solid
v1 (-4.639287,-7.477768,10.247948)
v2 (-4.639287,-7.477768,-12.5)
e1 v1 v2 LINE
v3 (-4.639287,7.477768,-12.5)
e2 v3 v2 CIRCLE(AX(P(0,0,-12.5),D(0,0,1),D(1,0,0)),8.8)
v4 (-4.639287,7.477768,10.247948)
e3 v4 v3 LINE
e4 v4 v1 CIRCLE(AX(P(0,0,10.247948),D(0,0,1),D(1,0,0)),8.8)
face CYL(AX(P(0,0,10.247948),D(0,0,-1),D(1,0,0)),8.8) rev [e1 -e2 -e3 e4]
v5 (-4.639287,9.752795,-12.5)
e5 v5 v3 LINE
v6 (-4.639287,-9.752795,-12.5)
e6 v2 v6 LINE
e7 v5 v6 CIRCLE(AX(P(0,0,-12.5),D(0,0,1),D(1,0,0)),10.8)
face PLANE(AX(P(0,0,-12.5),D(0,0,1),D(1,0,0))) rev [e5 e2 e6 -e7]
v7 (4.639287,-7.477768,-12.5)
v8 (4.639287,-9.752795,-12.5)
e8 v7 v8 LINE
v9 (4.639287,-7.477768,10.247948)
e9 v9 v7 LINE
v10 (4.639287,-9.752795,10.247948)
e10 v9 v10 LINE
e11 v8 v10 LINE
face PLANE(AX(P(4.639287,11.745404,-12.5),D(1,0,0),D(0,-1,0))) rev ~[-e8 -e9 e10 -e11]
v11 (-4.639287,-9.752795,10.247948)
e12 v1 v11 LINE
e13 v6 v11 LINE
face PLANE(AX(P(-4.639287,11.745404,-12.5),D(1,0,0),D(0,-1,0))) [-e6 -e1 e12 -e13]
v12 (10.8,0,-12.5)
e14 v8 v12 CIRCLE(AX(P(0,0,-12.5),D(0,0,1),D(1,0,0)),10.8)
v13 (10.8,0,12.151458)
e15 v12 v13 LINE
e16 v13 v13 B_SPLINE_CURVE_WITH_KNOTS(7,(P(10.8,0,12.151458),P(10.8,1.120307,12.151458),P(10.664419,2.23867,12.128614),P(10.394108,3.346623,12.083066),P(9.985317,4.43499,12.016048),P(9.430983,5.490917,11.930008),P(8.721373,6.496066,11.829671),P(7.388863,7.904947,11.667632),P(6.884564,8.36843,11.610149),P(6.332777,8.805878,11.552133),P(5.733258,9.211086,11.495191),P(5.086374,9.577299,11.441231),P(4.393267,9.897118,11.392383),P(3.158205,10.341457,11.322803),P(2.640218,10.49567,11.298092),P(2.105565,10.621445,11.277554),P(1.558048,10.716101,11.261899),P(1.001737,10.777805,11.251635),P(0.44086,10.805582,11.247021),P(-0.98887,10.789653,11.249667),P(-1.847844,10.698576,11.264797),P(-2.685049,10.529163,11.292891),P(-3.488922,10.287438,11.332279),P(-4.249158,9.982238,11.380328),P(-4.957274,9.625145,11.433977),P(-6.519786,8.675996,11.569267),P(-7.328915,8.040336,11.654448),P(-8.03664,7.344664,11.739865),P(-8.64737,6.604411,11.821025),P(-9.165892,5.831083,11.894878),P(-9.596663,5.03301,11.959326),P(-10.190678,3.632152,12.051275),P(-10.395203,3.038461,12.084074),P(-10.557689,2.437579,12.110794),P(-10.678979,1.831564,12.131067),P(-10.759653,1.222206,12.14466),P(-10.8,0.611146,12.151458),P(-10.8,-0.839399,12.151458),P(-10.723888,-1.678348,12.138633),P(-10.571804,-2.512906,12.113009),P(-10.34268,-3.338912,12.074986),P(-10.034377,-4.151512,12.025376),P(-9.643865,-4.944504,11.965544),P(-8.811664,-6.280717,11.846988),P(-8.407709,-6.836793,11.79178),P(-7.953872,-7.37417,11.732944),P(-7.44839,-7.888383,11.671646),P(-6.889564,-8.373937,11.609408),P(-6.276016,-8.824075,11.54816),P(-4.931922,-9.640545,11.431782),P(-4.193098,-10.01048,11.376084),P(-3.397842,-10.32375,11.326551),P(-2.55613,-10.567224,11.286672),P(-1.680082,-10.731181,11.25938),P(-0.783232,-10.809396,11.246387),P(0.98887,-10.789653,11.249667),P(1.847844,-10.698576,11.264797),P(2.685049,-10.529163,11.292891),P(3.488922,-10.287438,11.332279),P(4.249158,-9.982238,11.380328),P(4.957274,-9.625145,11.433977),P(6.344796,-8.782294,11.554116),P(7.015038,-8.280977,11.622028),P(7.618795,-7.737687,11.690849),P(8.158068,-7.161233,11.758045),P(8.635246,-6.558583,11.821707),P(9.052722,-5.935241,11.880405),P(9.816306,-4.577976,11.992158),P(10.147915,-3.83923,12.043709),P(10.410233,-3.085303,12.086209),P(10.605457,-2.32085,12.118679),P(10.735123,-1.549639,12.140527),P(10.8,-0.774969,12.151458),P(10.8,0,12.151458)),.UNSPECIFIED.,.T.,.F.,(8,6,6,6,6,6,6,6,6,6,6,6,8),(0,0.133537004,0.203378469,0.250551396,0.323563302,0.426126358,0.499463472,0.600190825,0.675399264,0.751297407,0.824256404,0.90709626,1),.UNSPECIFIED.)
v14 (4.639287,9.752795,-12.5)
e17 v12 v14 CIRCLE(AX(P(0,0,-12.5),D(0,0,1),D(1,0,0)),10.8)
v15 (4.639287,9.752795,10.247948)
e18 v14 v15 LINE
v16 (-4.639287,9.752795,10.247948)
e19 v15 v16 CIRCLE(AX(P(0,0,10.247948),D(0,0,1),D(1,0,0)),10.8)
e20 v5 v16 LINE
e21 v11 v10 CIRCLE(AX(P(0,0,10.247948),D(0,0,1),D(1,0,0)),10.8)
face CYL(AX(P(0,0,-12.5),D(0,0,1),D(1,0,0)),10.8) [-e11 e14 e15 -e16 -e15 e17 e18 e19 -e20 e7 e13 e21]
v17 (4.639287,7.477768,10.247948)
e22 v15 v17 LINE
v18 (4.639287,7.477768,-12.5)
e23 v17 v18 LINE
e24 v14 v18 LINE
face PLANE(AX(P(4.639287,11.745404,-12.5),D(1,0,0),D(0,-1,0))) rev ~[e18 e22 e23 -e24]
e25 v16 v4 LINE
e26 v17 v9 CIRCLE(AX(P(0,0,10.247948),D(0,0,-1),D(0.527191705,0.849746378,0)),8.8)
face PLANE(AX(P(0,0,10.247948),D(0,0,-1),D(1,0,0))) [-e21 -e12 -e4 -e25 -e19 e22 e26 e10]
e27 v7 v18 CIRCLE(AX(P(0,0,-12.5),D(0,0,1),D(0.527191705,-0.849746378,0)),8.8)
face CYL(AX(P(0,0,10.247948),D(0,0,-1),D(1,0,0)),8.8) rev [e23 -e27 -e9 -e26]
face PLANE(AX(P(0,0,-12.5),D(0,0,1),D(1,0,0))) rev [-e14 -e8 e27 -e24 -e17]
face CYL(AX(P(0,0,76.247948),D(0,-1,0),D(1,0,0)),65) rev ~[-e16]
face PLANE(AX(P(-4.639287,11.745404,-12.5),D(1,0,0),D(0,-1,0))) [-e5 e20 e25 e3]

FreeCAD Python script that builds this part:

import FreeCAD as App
import Part
import Sketcher

V = App.Vector
Q = App.Units.Quantity


def add_polygon(sketch, points):
    """Adds a closed chain of lines whose ends are joined by coincident constraints."""
    first, n = sketch.GeometryCount, len(points)
    for a, b in zip(points, points[1:] + points[:1]):
        sketch.addGeometry(Part.LineSegment(App.Vector(*a, 0), App.Vector(*b, 0)), False)
    for i in range(n):
        sketch.addConstraint(Sketcher.Constraint("Coincident", first + i, 2, first + (i + 1) % n, 1))

doc = App.newDocument("Part")
body = doc.addObject("PartDesign::Body", "Body")

# Sketch on XZ plane
sketch1 = doc.addObject("Sketcher::SketchObject", "Sketch")
body.addObject(sketch1)
sketch1.AttachmentSupport = (doc.XZ_Plane, [""])
sketch1.MapMode = "FlatFace"
add_polygon(sketch1, [(10.8, -12.5), (10.8, 15.247948), (0, 15.247948), (0, 10.247948), (8.8, 10.247948), (8.8, -12.5)])  # lines 0-5
sketch1.addConstraint([
    Sketcher.Constraint("Vertical", 0),
    Sketcher.Constraint("Horizontal", 1),
    Sketcher.Constraint("Vertical", 2),
    Sketcher.Constraint("Horizontal", 3),
    Sketcher.Constraint("Vertical", 4),
    Sketcher.Constraint("Horizontal", 5),
    Sketcher.Constraint("PointOnObject", 1, 2, -2),
    Sketcher.Constraint("DistanceX", 5, 1, 5, 2, Q("2 mm")),
    Sketcher.Constraint("DistanceY", 2, 2, 2, 1, Q("5 mm")),
    Sketcher.Constraint("DistanceX", 1, 2, 1, 1, Q("10.8 mm")),
    Sketcher.Constraint("DistanceY", 4, 2, -1, 1, Q("12.5 mm")),
    Sketcher.Constraint("DistanceY", 0, 1, 0, 2, Q("27.747948 mm")),
])
revolution = doc.addObject("PartDesign::Revolution", "Revolution")
body.addObject(revolution)
revolution.Profile = sketch1
revolution.ReferenceAxis = (sketch1, ["V_Axis"])
revolution.Angle = 360

# Sketch on XY plane
sketch2 = doc.addObject("Sketcher::SketchObject", "Sketch001")
body.addObject(sketch2)
sketch2.AttachmentSupport = (doc.XY_Plane, [""])
sketch2.MapMode = "FlatFace"
sketch2.AttachmentOffset = App.Placement(V(0, 0, -12.5), App.Rotation())
add_polygon(sketch2, [(-4.639287, -11.745404), (-4.639287, 11.745404), (4.639287, 11.745404), (4.639287, -11.745404)])  # lines 0-3
sketch2.addConstraint([
    Sketcher.Constraint("Vertical", 0),
    Sketcher.Constraint("Horizontal", 1),
    Sketcher.Constraint("Vertical", 2),
    Sketcher.Constraint("Horizontal", 3),
    Sketcher.Constraint("Symmetric", 0, 2, 2, 2, -1, 1),
    Sketcher.Constraint("DistanceY", 0, 1, 0, 2, Q("23.490808 mm")),
    Sketcher.Constraint("DistanceX", 1, 1, 1, 2, Q("9.278574 mm")),
])
pocket1 = doc.addObject("PartDesign::Pocket", "Pocket")
body.addObject(pocket1)
pocket1.Profile = sketch2
pocket1.Length = 22.747948
pocket1.Reversed = True

# Sketch on XZ plane
sketch3 = doc.addObject("Sketcher::SketchObject", "Sketch002")
body.addObject(sketch3)
sketch3.AttachmentSupport = (doc.XZ_Plane, [""])
sketch3.MapMode = "FlatFace"
sketch3.addGeometry(Part.Circle(V(0, 76.247948, 0), V(0, 0, 1), 65), False)
sketch3.addConstraint([
    Sketcher.Constraint("PointOnObject", 0, 3, -2),
    Sketcher.Constraint("Diameter", 0, Q("130 mm")),
    Sketcher.Constraint("DistanceY", -1, 1, 0, 3, Q("76.247948 mm")),
])
pocket2 = doc.addObject("PartDesign::Pocket", "Pocket001")
body.addObject(pocket2)
pocket2.Profile = sketch3
pocket2.Length = 25
pocket2.Midplane = True

doc.recompute()
